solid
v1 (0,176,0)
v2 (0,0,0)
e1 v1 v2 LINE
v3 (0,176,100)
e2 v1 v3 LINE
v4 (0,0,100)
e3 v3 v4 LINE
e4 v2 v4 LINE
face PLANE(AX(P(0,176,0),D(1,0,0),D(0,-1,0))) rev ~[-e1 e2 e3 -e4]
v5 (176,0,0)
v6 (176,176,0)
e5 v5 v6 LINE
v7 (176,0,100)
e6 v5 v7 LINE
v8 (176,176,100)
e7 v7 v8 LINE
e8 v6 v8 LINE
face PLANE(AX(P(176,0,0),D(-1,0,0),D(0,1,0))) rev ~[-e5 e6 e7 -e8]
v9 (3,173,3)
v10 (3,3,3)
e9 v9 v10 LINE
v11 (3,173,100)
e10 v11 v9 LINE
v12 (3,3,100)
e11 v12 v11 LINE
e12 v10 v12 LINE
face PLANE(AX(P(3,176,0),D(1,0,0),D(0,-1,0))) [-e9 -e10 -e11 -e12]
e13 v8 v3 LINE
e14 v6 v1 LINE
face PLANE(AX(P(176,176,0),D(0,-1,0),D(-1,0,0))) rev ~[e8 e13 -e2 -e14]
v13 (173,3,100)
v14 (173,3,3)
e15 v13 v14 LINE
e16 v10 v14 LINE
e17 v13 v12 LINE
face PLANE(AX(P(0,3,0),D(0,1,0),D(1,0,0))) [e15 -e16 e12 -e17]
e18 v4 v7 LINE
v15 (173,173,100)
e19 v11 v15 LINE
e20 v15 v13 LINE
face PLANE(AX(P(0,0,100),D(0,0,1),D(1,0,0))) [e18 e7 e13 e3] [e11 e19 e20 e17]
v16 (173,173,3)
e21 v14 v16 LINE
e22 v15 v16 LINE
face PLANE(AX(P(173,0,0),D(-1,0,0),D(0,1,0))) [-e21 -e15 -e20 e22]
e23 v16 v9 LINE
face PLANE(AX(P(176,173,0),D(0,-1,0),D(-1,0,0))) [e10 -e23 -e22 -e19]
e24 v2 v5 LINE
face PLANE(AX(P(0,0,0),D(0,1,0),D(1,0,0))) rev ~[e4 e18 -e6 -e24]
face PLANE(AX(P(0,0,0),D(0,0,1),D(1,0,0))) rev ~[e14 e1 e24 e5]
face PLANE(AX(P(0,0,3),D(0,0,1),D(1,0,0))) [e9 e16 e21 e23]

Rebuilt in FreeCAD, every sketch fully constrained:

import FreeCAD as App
import Part
import Sketcher


def faces_at(feature, points):
    """Names of the faces that lie closest to the given points."""
    faces = feature.Shape.Faces
    near = lambda p: min(range(len(faces)), key=lambda i: faces[i].distToShape(Part.Vertex(*p))[0])
    return sorted({f"Face{near(p) + 1}" for p in points})

doc = App.newDocument("Part")
body = doc.addObject("PartDesign::Body", "Body")

# Sketch on XY plane
sketch1 = doc.addObject("Sketcher::SketchObject", "Sketch")
body.addObject(sketch1)
sketch1.AttachmentSupport = (doc.XY_Plane, [""])
sketch1.MapMode = "FlatFace"
sketch1.addGeometry([
    Part.LineSegment(App.Vector(0, 176, 0), App.Vector(0, 0, 0)),
    Part.LineSegment(App.Vector(0, 0, 0), App.Vector(176, 0, 0)),
    Part.LineSegment(App.Vector(176, 0, 0), App.Vector(176, 176, 0)),
    Part.LineSegment(App.Vector(176, 176, 0), App.Vector(0, 176, 0)),
], False)
sketch1.addConstraint([
    Sketcher.Constraint("Coincident", 0, 2, 1, 1),
    Sketcher.Constraint("Coincident", 1, 2, 2, 1),
    Sketcher.Constraint("Coincident", 2, 2, 3, 1),
    Sketcher.Constraint("Coincident", 3, 2, 0, 1),
    Sketcher.Constraint("Vertical", 0),
    Sketcher.Constraint("Horizontal", 1),
    Sketcher.Constraint("Vertical", 2),
    Sketcher.Constraint("Horizontal", 3),
    Sketcher.Constraint("Coincident", 0, 2, -1, 1),
    Sketcher.Constraint("Equal", 3, 0),
    Sketcher.Constraint("DistanceX", 1, 1, 1, 2, 176.0),
])
pad1 = doc.addObject("PartDesign::Pad", "Pad")
body.addObject(pad1)
pad1.Profile = sketch1
pad1.Length = 100
doc.recompute()

thickness = doc.addObject("PartDesign::Thickness", "Thickness")
body.addObject(thickness)
thickness.Base = (pad1, faces_at(pad1, [(117.333, 58.667, 100)]))
thickness.Value = 3
thickness.Reversed = True
thickness.Join = "Intersection"

doc.recompute()
